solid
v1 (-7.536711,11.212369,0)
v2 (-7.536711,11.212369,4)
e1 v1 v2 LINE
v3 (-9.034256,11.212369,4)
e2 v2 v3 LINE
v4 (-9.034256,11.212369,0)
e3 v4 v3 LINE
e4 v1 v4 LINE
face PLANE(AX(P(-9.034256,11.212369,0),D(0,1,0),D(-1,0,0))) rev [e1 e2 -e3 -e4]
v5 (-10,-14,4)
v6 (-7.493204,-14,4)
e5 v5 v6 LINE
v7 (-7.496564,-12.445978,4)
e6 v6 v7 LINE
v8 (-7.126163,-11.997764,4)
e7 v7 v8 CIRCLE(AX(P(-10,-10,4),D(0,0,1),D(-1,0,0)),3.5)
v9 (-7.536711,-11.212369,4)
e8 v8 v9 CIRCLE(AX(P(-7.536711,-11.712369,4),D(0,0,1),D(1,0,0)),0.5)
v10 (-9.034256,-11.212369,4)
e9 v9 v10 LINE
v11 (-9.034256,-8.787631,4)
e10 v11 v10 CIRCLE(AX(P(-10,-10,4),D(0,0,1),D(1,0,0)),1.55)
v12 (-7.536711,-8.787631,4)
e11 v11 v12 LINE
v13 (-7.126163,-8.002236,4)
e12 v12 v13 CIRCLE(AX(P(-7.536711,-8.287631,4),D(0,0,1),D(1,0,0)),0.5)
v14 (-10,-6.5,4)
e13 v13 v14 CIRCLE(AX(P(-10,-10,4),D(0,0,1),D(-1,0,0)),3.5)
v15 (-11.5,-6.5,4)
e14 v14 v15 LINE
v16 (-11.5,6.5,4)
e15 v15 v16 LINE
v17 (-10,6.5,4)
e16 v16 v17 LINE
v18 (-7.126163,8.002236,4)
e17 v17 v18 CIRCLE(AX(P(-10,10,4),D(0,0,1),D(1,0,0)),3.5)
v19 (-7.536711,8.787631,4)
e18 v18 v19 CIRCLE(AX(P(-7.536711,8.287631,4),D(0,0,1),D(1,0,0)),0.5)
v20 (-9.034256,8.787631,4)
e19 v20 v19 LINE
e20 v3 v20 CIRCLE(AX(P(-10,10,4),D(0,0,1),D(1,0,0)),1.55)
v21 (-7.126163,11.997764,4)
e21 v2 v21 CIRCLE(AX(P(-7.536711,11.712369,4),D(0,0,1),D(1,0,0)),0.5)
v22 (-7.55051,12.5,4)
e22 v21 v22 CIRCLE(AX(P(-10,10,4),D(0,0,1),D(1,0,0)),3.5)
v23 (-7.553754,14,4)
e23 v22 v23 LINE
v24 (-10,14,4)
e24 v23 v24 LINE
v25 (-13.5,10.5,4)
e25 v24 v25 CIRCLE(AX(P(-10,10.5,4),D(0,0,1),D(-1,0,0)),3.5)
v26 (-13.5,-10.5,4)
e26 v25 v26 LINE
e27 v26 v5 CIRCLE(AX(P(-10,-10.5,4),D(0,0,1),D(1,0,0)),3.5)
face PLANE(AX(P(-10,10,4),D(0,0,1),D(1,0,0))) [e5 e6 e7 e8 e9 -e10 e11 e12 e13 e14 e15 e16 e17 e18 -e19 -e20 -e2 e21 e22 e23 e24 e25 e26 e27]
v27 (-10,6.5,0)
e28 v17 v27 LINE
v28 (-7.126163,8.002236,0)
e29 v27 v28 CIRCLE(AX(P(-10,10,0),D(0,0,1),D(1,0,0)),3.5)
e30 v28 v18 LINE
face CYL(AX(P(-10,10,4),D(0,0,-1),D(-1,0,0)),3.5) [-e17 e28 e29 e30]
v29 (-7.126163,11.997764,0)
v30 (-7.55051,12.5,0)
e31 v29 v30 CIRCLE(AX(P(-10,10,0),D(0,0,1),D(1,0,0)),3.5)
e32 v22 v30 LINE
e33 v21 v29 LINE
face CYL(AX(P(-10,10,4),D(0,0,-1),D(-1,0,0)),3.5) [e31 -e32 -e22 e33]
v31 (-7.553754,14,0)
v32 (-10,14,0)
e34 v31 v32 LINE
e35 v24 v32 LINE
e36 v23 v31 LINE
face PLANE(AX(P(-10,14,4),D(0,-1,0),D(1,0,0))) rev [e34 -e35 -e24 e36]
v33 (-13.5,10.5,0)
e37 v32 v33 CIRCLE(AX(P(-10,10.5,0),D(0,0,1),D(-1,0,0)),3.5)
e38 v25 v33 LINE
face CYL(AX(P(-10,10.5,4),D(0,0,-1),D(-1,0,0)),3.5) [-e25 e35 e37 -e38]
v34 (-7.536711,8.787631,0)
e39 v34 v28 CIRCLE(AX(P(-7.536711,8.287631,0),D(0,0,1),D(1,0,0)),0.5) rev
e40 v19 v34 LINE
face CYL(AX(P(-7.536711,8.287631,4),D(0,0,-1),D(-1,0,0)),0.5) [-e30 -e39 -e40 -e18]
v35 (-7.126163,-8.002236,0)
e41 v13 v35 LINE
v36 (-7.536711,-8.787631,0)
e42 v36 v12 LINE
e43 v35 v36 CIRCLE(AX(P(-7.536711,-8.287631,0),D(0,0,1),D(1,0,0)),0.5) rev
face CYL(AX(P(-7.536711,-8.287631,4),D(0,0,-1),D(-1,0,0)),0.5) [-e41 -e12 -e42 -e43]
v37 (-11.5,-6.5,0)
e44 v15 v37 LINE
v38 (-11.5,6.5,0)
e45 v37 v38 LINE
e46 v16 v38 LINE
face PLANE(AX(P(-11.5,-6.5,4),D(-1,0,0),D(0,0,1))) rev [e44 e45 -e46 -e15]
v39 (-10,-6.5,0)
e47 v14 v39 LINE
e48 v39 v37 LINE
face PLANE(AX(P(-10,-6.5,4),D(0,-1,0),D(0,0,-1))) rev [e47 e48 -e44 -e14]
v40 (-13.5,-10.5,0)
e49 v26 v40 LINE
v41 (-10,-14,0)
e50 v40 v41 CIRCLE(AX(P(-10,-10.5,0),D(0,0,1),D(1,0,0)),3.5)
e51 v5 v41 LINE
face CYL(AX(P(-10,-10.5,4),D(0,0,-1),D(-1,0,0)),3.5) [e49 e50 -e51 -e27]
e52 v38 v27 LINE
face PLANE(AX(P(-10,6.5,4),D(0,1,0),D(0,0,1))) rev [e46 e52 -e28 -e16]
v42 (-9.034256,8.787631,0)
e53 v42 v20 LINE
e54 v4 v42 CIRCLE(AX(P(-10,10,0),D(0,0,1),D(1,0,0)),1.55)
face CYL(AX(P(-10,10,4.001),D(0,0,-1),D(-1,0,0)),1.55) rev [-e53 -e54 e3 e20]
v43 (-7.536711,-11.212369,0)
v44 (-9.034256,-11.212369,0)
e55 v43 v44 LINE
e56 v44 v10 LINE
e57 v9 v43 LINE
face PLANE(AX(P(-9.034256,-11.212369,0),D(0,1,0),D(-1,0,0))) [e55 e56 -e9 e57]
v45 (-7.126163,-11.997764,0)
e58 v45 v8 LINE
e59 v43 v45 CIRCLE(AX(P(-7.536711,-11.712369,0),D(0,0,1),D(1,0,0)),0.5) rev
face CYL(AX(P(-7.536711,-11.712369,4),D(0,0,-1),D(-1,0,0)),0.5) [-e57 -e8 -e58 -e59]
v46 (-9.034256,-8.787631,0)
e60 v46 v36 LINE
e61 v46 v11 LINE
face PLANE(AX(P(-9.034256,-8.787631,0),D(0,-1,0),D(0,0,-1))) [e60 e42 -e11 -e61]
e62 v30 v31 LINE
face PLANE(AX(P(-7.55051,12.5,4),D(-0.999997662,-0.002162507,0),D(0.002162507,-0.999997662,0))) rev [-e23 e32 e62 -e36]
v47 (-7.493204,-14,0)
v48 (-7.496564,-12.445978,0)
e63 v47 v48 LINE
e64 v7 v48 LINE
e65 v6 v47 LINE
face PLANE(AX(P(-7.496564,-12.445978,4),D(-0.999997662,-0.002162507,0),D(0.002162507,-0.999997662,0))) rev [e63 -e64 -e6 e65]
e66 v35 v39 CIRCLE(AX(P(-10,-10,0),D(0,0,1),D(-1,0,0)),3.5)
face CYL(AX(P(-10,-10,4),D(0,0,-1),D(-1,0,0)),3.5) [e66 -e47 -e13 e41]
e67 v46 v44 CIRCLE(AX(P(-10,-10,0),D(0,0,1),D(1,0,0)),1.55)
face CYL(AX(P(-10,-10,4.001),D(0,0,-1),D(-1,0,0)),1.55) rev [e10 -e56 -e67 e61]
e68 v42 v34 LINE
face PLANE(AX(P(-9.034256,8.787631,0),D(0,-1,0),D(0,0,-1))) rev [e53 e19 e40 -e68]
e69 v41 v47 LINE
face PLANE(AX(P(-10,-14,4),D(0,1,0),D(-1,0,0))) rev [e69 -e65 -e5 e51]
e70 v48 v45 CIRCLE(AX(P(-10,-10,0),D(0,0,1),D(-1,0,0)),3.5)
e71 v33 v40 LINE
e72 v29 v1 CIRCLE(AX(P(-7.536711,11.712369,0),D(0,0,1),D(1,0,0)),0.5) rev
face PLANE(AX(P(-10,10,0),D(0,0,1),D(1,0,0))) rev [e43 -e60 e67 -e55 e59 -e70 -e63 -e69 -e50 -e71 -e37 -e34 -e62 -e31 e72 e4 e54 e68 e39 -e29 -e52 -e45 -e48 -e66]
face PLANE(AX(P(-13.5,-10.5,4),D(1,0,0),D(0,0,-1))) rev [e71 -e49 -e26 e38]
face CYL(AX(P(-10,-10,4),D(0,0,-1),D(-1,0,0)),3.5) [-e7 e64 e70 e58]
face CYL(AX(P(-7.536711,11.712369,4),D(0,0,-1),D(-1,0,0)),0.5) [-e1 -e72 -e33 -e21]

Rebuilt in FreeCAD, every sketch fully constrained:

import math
import FreeCAD as App
import Part
import Sketcher
from FreeCAD import Vector


def edges_at(feature, points):
    """Names of the edges that pass closest to the given points."""
    edges = feature.Shape.Edges
    near = lambda p: min(range(len(edges)), key=lambda i: edges[i].distToShape(Part.Vertex(*p))[0])
    return sorted({f"Edge{near(p) + 1}" for p in points})

doc = App.newDocument("Part")
body = doc.addObject("PartDesign::Body", "Body")

sketch1 = doc.addObject("Sketcher::SketchObject", "Sketch")
body.addObject(sketch1)
sketch1.AttachmentSupport = (doc.XY_Plane, [""])
sketch1.MapMode = "FlatFace"
sketch1.addGeometry([
    Part.LineSegment(Vector(-7.6, 14, 0), Vector(-10, 14, 0)),
    Part.ArcOfCircle(Part.Circle(Vector(-10, 10.5, 0), Vector(0, 0, 1), 3.5), math.radians(90), math.radians(180)),
    Part.LineSegment(Vector(-13.5, 10.5, 0), Vector(-13.5, -10.5, 0)),
    Part.ArcOfCircle(Part.Circle(Vector(-10, -10.5, 0), Vector(0, 0, 1), 3.5), math.radians(-180), math.radians(-90)),
    Part.LineSegment(Vector(-10, -14, 0), Vector(-7.5, -14, 0)),
    Part.LineSegment(Vector(-7.5, -14, 0), Vector(-7.5, -12.4, 0)),
    Part.ArcOfCircle(Part.Circle(Vector(-10, -10, 0), Vector(0, 0, 1), 3.5), math.radians(-44), math.radians(90)),
    Part.LineSegment(Vector(-10, -6.5, 0), Vector(-11.5, -6.5, 0)),
    Part.LineSegment(Vector(-11.5, -6.5, 0), Vector(-11.5, 6.5, 0)),
    Part.LineSegment(Vector(-11.5, 6.5, 0), Vector(-10, 6.5, 0)),
    Part.ArcOfCircle(Part.Circle(Vector(-10, 10, 0), Vector(0, 0, 1), 3.5), math.radians(-90), math.radians(46)),
    Part.LineSegment(Vector(-7.6, 12.5, 0), Vector(-7.6, 14, 0)),
], False)
sketch1.addConstraint([
    Sketcher.Constraint("Tangent", 0, 2, 1, 1),
    Sketcher.Constraint("Tangent", 1, 2, 2, 1),
    Sketcher.Constraint("Tangent", 2, 2, 3, 1),
    Sketcher.Constraint("Tangent", 3, 2, 4, 1),
    Sketcher.Constraint("Coincident", 4, 2, 5, 1),
    Sketcher.Constraint("Coincident", 5, 2, 6, 1),
    Sketcher.Constraint("Tangent", 6, 2, 7, 1),
    Sketcher.Constraint("Coincident", 7, 2, 8, 1),
    Sketcher.Constraint("Coincident", 8, 2, 9, 1),
    Sketcher.Constraint("Tangent", 9, 2, 10, 1),
    Sketcher.Constraint("Coincident", 10, 2, 11, 1),
    Sketcher.Constraint("Coincident", 11, 2, 0, 1),
    Sketcher.Constraint("Horizontal", 0),
    Sketcher.Constraint("Vertical", 2),
    Sketcher.Constraint("Horizontal", 4),
    Sketcher.Constraint("Horizontal", 7),
    Sketcher.Constraint("Vertical", 8),
    Sketcher.Constraint("Horizontal", 9),
    Sketcher.Constraint("Equal", 1, 3),
    Sketcher.Constraint("Equal", 3, 6),
    Sketcher.Constraint("Equal", 6, 10),
    Sketcher.Constraint("Symmetric", 6, 3, 10, 3, -1),
    Sketcher.Constraint("Parallel", 5, 11),
    Sketcher.Constraint("Vertical", 3, 3, 6, 3),
    Sketcher.Constraint("Radius", 1, 3.5),
    Sketcher.Constraint("DistanceY", 2, 2, 2, 1, 21.0),
    Sketcher.Constraint("DistanceY", 8, 1, 8, 2, 13.0),
    Sketcher.Constraint("DistanceX", 7, 2, 7, 1, 1.5),
    Sketcher.Constraint("DistanceX", 1, 3, -1, 1, 10.0),
    Sketcher.Constraint("DistanceY", -1, 1, 0, 2, 14.0),
    Sketcher.Constraint("DistanceY", 1, 3, 10, 2, 2.0),
    Sketcher.Constraint("DistanceX", 0, 2, 0, 1, 2.446246),
    Sketcher.Constraint("DistanceX", 4, 1, 4, 2, 2.506796),
])
pad1 = doc.addObject("PartDesign::Pad", "Pad")
body.addObject(pad1)
pad1.Profile = sketch1
pad1.Length = 4

sketch2 = doc.addObject("Sketcher::SketchObject", "Sketch001")
body.addObject(sketch2)
sketch2.AttachmentSupport = (doc.XY_Plane, [""])
sketch2.MapMode = "FlatFace"
sketch2.addGeometry(Part.Circle(Vector(-10, -10, 0), Vector(0, 0, 1), 1.6), False)
sketch2.addConstraint([
    Sketcher.Constraint("Diameter", 0, 3.1),
    Sketcher.Constraint("DistanceX", 0, 3, -1, 1, 10.0),
    Sketcher.Constraint("DistanceY", 0, 3, -1, 1, 10.0),
])
pocket1 = doc.addObject("PartDesign::Pocket", "Pocket")
body.addObject(pocket1)
pocket1.Profile = sketch2
pocket1.Type = "UpToFirst"
pocket1.Reversed = True

sketch3 = doc.addObject("Sketcher::SketchObject", "Sketch002")
body.addObject(sketch3)
sketch3.AttachmentSupport = (doc.XY_Plane, [""])
sketch3.MapMode = "FlatFace"
sketch3.addGeometry(Part.Circle(Vector(-10, 10, 0), Vector(0, 0, 1), 1.6), False)
sketch3.addConstraint([
    Sketcher.Constraint("Diameter", 0, 3.1),
    Sketcher.Constraint("DistanceX", 0, 3, -1, 1, 10.0),
    Sketcher.Constraint("DistanceY", -1, 1, 0, 3, 10.0),
])
pocket2 = doc.addObject("PartDesign::Pocket", "Pocket001")
body.addObject(pocket2)
pocket2.Profile = sketch3
pocket2.Type = "UpToFirst"
pocket2.Reversed = True

sketch4 = doc.addObject("Sketcher::SketchObject", "Sketch003")
body.addObject(sketch4)
sketch4.AttachmentSupport = (doc.XY_Plane, [""])
sketch4.MapMode = "FlatFace"
sketch4.AttachmentOffset = App.Placement(Vector(0, 0, 4), App.Rotation())
sketch4.addGeometry([
    Part.LineSegment(Vector(-6.7, 11.2, 0), Vector(-9, 11.2, 0)),
    Part.ArcOfCircle(Part.Circle(Vector(-10, 10, 0), Vector(0, 0, 1), 1.6), math.radians(-51), math.radians(51)),
    Part.LineSegment(Vector(-9, 8.8, 0), Vector(-6.7, 8.8, 0)),
    Part.ArcOfCircle(Part.Circle(Vector(-10, 10, 0), Vector(0, 0, 1), 3.5), math.radians(-20), math.radians(20)),
], False)
sketch4.addConstraint([
    Sketcher.Constraint("Coincident", 0, 2, 1, 2),
    Sketcher.Constraint("Coincident", 1, 1, 2, 1),
    Sketcher.Constraint("Coincident", 2, 2, 3, 1),
    Sketcher.Constraint("Coincident", 3, 2, 0, 1),
    Sketcher.Constraint("Horizontal", 0),
    Sketcher.Constraint("Horizontal", 2),
    Sketcher.Constraint("Coincident", 3, 3, 1, 3),
    Sketcher.Constraint("Vertical", 0, 2, 1, 1),
    Sketcher.Constraint("Radius", 3, 3.5),
    Sketcher.Constraint("Radius", 1, 1.55),
    Sketcher.Constraint("DistanceX", 1, 3, -1, 1, 10.0),
    Sketcher.Constraint("DistanceY", -1, 1, 1, 3, 10.0),
    Sketcher.Constraint("DistanceX", 0, 2, 0, 1, 2.317572),
])
pocket3 = doc.addObject("PartDesign::Pocket", "Pocket002")
body.addObject(pocket3)
pocket3.Profile = sketch4
pocket3.Type = "ThroughAll"
doc.recompute()

mirrored = doc.addObject("PartDesign::Mirrored", "Mirrored")
body.addObject(mirrored)
mirrored.Originals = [pocket3]
mirrored.MirrorPlane = (doc.XZ_Plane, [""])
body.Tip = mirrored
doc.recompute()

fillet = doc.addObject("PartDesign::Fillet", "Fillet")
body.addObject(fillet)
fillet.Base = (mirrored, edges_at(mirrored, [
    (-6.717, 11.212, 2),
    (-6.717, 8.788, 2),
    (-6.717, -8.788, 2),
    (-6.717, -11.212, 2),
]))
fillet.Radius = 0.5

doc.recompute()
